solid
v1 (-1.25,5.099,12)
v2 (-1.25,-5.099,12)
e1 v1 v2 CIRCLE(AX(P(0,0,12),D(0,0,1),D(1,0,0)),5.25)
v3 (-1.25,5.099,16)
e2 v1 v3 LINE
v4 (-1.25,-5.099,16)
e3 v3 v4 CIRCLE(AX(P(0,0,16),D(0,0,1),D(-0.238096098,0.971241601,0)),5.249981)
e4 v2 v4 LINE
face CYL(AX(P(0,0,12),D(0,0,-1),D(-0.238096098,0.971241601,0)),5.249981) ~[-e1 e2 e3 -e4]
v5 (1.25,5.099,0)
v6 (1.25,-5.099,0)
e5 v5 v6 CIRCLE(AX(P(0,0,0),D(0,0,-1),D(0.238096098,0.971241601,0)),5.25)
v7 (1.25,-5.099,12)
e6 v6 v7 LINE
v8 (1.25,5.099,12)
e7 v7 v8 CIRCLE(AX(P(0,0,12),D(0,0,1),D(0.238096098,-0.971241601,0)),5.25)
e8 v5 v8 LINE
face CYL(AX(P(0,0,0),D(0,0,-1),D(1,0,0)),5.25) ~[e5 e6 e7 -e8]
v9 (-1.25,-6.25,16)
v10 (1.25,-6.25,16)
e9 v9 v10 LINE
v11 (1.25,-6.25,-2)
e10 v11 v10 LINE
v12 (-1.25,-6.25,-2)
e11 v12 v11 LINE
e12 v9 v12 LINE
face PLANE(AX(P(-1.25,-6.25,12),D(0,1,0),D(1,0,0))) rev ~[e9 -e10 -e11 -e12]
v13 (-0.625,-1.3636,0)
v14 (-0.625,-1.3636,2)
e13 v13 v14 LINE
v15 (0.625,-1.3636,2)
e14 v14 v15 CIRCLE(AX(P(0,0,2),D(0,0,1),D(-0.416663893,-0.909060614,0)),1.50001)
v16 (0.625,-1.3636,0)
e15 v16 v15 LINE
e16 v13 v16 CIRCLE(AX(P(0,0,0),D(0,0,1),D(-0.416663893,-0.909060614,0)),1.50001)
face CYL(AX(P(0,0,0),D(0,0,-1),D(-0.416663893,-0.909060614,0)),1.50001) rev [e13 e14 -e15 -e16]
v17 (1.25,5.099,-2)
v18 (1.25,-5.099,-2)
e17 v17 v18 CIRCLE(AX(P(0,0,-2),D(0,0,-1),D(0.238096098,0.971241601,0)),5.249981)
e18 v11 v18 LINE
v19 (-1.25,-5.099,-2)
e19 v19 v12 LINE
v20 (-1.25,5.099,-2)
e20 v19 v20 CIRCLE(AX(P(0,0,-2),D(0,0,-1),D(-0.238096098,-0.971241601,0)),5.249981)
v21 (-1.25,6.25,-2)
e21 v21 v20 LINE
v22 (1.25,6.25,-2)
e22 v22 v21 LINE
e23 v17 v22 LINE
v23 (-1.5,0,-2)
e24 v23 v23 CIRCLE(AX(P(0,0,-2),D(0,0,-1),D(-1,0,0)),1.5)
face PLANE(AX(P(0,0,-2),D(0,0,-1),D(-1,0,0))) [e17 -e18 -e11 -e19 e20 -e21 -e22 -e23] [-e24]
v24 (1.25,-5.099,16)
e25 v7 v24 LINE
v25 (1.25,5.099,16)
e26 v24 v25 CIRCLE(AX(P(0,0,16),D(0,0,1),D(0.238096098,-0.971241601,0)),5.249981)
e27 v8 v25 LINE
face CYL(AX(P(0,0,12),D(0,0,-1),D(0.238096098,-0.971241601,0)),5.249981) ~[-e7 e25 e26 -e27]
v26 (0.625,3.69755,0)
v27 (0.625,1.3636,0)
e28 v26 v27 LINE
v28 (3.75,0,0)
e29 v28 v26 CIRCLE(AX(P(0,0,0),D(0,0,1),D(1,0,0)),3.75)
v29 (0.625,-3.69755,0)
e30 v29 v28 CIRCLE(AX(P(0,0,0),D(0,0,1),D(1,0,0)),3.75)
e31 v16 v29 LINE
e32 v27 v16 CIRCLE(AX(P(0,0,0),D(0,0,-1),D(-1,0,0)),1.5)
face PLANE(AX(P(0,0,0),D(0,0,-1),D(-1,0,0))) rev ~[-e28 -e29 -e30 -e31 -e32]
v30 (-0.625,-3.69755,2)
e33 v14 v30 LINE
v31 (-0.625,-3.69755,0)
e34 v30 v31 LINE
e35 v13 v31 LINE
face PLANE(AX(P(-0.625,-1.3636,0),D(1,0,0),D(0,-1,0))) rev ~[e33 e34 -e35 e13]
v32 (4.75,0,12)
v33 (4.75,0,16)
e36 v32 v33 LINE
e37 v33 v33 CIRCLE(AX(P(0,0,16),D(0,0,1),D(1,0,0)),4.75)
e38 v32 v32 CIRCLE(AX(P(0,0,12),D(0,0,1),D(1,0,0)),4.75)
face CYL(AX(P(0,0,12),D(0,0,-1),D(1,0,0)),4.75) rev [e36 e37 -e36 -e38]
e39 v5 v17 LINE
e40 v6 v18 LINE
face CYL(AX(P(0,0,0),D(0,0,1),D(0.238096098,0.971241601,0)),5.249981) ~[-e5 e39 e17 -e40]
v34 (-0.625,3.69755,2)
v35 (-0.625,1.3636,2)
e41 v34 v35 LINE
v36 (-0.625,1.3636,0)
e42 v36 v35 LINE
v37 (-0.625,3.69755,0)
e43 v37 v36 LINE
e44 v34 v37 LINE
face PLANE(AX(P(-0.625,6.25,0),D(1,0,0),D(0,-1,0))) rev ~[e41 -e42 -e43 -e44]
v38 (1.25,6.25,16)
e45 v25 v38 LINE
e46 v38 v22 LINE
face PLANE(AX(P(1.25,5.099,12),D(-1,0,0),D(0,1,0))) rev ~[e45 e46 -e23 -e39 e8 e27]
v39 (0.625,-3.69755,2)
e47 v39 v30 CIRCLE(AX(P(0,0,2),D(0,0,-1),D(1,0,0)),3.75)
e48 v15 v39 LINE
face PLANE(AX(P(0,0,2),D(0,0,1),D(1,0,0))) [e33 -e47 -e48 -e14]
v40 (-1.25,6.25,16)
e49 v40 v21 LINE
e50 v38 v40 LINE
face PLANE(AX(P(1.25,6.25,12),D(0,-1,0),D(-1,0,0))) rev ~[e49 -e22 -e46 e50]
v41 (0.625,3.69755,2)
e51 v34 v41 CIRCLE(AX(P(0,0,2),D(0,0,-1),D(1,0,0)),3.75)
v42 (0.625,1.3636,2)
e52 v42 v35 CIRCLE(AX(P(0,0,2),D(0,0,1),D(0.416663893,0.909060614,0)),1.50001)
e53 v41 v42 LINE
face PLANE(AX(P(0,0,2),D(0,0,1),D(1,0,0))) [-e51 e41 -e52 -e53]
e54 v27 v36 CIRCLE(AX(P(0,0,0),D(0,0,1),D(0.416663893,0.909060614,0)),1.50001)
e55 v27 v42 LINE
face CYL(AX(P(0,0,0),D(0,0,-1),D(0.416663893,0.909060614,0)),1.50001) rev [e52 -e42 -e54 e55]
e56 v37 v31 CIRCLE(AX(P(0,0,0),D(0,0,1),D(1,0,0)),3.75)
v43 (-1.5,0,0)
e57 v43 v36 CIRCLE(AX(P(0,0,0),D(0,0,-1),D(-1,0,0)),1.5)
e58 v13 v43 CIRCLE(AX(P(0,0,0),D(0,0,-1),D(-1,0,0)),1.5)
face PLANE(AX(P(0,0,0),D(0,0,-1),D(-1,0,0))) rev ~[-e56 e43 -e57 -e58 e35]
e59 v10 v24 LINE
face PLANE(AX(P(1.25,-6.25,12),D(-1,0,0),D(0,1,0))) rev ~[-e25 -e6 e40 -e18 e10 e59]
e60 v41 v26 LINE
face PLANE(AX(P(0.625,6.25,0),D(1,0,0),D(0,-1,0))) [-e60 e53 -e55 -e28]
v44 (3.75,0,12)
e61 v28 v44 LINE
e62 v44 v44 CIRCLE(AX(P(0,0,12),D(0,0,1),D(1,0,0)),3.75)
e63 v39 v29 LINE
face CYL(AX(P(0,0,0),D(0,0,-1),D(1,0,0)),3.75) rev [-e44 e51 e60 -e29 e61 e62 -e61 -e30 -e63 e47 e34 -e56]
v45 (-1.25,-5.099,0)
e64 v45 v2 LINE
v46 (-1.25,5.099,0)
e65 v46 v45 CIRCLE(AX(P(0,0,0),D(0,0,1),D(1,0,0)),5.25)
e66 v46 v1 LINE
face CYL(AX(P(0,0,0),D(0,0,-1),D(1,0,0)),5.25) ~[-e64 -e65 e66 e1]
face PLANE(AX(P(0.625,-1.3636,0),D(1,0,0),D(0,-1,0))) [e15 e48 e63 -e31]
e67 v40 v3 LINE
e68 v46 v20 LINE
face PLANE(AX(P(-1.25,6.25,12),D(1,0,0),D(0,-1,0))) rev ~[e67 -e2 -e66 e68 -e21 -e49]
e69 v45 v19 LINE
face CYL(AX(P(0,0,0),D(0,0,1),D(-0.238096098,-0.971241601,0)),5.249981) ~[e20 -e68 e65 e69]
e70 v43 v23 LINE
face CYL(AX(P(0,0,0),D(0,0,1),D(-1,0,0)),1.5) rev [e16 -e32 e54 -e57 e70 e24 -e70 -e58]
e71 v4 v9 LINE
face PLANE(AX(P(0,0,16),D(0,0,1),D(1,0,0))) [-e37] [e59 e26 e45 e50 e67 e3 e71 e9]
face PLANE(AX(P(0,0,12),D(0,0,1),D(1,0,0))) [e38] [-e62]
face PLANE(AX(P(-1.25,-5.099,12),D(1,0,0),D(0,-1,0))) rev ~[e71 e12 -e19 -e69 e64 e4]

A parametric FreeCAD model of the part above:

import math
import FreeCAD as App
import Part
import Sketcher

V = App.Vector
Q = App.Units.Quantity

doc = App.newDocument("Part")
body = doc.addObject("PartDesign::Body", "Body")

sketch1 = body.newObject("Sketcher::SketchObject", "Sketch")
sketch1.AttachmentSupport = (doc.getObject("XY_Plane"), [""])
sketch1.MapMode = "FlatFace"
sketch1.addGeometry([
    Part.LineSegment(V(-1.2, -6.2, 0), V(1.2, -6.2, 0)),
    Part.LineSegment(V(1.2, -6.2, 0), V(1.2, -5.1, 0)),
    Part.ArcOfCircle(Part.Circle(V(0, 0, 0), V(0, 0, 1), 5.2), math.radians(-76), math.radians(76)),
    Part.LineSegment(V(1.2, 5.1, 0), V(1.2, 6.2, 0)),
    Part.LineSegment(V(1.2, 6.2, 0), V(-1.2, 6.2, 0)),
    Part.LineSegment(V(-1.2, 6.2, 0), V(-1.2, 5.1, 0)),
    Part.ArcOfCircle(Part.Circle(V(0, 0, 0), V(0, 0, 1), 5.2), math.radians(104), math.radians(256)),
    Part.LineSegment(V(-1.2, -5.1, 0), V(-1.2, -6.2, 0)),
    Part.Circle(V(0, 0, 0), V(0, 0, 1), 3.8),
], False)
sketch1.addConstraint([
    Sketcher.Constraint("Coincident", 0, 2, 1, 1),
    Sketcher.Constraint("Coincident", 1, 2, 2, 1),
    Sketcher.Constraint("Coincident", 2, 2, 3, 1),
    Sketcher.Constraint("Coincident", 3, 2, 4, 1),
    Sketcher.Constraint("Coincident", 4, 2, 5, 1),
    Sketcher.Constraint("Coincident", 5, 2, 6, 1),
    Sketcher.Constraint("Coincident", 6, 2, 7, 1),
    Sketcher.Constraint("Coincident", 7, 2, 0, 1),
    Sketcher.Constraint("Horizontal", 0),
    Sketcher.Constraint("Vertical", 1),
    Sketcher.Constraint("Vertical", 3),
    Sketcher.Constraint("Horizontal", 4),
    Sketcher.Constraint("Vertical", 5),
    Sketcher.Constraint("Vertical", 7),
    Sketcher.Constraint("Coincident", 2, 3, -1, 1),
    Sketcher.Constraint("Coincident", 6, 3, -1, 1),
    Sketcher.Constraint("Coincident", 8, 3, -1, 1),
    Sketcher.Constraint("Equal", 2, 6),
    Sketcher.Constraint("Symmetric", 0, 2, 4, 2, -1, 1),
    Sketcher.Constraint("Horizontal", 2, 2, 5, 2),
    Sketcher.Constraint("Horizontal", 1, 2, 6, 2),
    Sketcher.Constraint("Diameter", 8, Q("7.5 mm")),
    Sketcher.Constraint("Radius", 2, Q("5.25 mm")),
    Sketcher.Constraint("DistanceX", 0, 1, 0, 2, Q("2.5 mm")),
    Sketcher.Constraint("DistanceY", 1, 1, 1, 2, Q("1.151 mm")),
])
pad1 = body.newObject("PartDesign::Pad", "Pad")
pad1.Profile = sketch1
pad1.Length = 12

sketch2 = body.newObject("Sketcher::SketchObject", "Sketch001")
sketch2.AttachmentSupport = (doc.getObject("XY_Plane"), [""])
sketch2.MapMode = "FlatFace"
sketch2.addGeometry([
    Part.LineSegment(V(1.2, -5.1, 0), V(1.2, -6.2, 0)),
    Part.LineSegment(V(1.2, -6.2, 0), V(-1.2, -6.2, 0)),
    Part.LineSegment(V(-1.2, -6.2, 0), V(-1.2, -5.1, 0)),
    Part.ArcOfCircle(Part.Circle(V(0, 0, 0), V(0, 0, 1), 5.2), math.radians(104), math.radians(256)),
    Part.LineSegment(V(-1.2, 5.1, 0), V(-1.2, 6.2, 0)),
    Part.LineSegment(V(-1.2, 6.2, 0), V(1.2, 6.2, 0)),
    Part.LineSegment(V(1.2, 6.2, 0), V(1.2, 5.1, 0)),
    Part.ArcOfCircle(Part.Circle(V(0, 0, 0), V(0, 0, 1), 5.2), math.radians(-76), math.radians(76)),
    Part.Circle(V(0, 0, 0), V(0, 0, 1), 1.5),
], False)
sketch2.addConstraint([
    Sketcher.Constraint("Coincident", 0, 2, 1, 1),
    Sketcher.Constraint("Coincident", 1, 2, 2, 1),
    Sketcher.Constraint("Coincident", 2, 2, 3, 2),
    Sketcher.Constraint("Coincident", 3, 1, 4, 1),
    Sketcher.Constraint("Coincident", 4, 2, 5, 1),
    Sketcher.Constraint("Coincident", 5, 2, 6, 1),
    Sketcher.Constraint("Coincident", 6, 2, 7, 2),
    Sketcher.Constraint("Coincident", 7, 1, 0, 1),
    Sketcher.Constraint("Vertical", 0),
    Sketcher.Constraint("Horizontal", 1),
    Sketcher.Constraint("Vertical", 2),
    Sketcher.Constraint("Vertical", 4),
    Sketcher.Constraint("Horizontal", 5),
    Sketcher.Constraint("Vertical", 6),
    Sketcher.Constraint("Coincident", 3, 3, -1, 1),
    Sketcher.Constraint("Coincident", 7, 3, -1, 1),
    Sketcher.Constraint("Coincident", 8, 3, -1, 1),
    Sketcher.Constraint("Equal", 3, 7),
    Sketcher.Constraint("Symmetric", 0, 2, 4, 2, -1, 1),
    Sketcher.Constraint("Horizontal", 3, 1, 6, 2),
    Sketcher.Constraint("Horizontal", 2, 2, 7, 1),
    Sketcher.Constraint("Diameter", 8, Q("3 mm")),
    Sketcher.Constraint("Radius", 3, Q("5.25 mm")),
    Sketcher.Constraint("DistanceX", 1, 2, 1, 1, Q("2.5 mm")),
    Sketcher.Constraint("DistanceY", 0, 2, 0, 1, Q("1.151 mm")),
])
pad2 = body.newObject("PartDesign::Pad", "Pad001")
pad2.Profile = sketch2
pad2.Length = 2
pad2.Reversed = True

sketch3 = body.newObject("Sketcher::SketchObject", "Sketch002")
sketch3.AttachmentSupport = (doc.getObject("XY_Plane"), [""])
sketch3.MapMode = "FlatFace"
sketch3.addGeometry([
    Part.LineSegment(V(0.6, 1.4, 0), V(0.6, 6.2, 0)),
    Part.LineSegment(V(0.6, 6.2, 0), V(-0.6, 6.2, 0)),
    Part.LineSegment(V(-0.6, 6.2, 0), V(-0.6, 1.4, 0)),
    Part.ArcOfCircle(Part.Circle(V(0, 0, 0), V(0, 0, 1), 1.5), math.radians(65), math.radians(115)),
    Part.LineSegment(V(-0.6, -1.4, 0), V(-0.6, -6.2, 0)),
    Part.LineSegment(V(-0.6, -6.2, 0), V(0.6, -6.2, 0)),
    Part.LineSegment(V(0.6, -6.2, 0), V(0.6, -1.4, 0)),
    Part.ArcOfCircle(Part.Circle(V(0, 0, 0), V(0, 0, 1), 1.5), math.radians(-115), math.radians(-65)),
], False)
sketch3.addConstraint([
    Sketcher.Constraint("Coincident", 0, 2, 1, 1),
    Sketcher.Constraint("Coincident", 1, 2, 2, 1),
    Sketcher.Constraint("Coincident", 2, 2, 3, 2),
    Sketcher.Constraint("Coincident", 3, 1, 0, 1),
    Sketcher.Constraint("Coincident", 4, 2, 5, 1),
    Sketcher.Constraint("Coincident", 5, 2, 6, 1),
    Sketcher.Constraint("Coincident", 6, 2, 7, 2),
    Sketcher.Constraint("Coincident", 7, 1, 4, 1),
    Sketcher.Constraint("Vertical", 0),
    Sketcher.Constraint("Horizontal", 1),
    Sketcher.Constraint("Vertical", 2),
    Sketcher.Constraint("Vertical", 4),
    Sketcher.Constraint("Horizontal", 5),
    Sketcher.Constraint("Vertical", 6),
    Sketcher.Constraint("Coincident", 3, 3, -1, 1),
    Sketcher.Constraint("Coincident", 7, 3, -1, 1),
    Sketcher.Constraint("Equal", 3, 7),
    Sketcher.Constraint("Symmetric", 0, 2, 4, 2, -1, 1),
    Sketcher.Constraint("Horizontal", 2, 2, 3, 1),
    Sketcher.Constraint("Horizontal", 6, 2, 7, 1),
    Sketcher.Constraint("DistanceX", 1, 2, 1, 1, Q("1.25 mm")),
    Sketcher.Constraint("Radius", 3, Q("1.5 mm")),
    Sketcher.Constraint("DistanceY", 4, 2, 1, 2, Q("12.5 mm")),
])
pad3 = body.newObject("PartDesign::Pad", "Pad002")
pad3.Profile = sketch3
pad3.Length = 2

sketch4 = body.newObject("Sketcher::SketchObject", "Sketch003")
sketch4.AttachmentSupport = (doc.getObject("XY_Plane"), [""])
sketch4.MapMode = "FlatFace"
sketch4.AttachmentOffset = App.Placement(V(0, 0, 12), App.Rotation())
sketch4.addGeometry([
    Part.LineSegment(V(-1.2, -6.2, 0), V(1.2, -6.2, 0)),
    Part.LineSegment(V(1.2, -6.2, 0), V(1.2, -5.1, 0)),
    Part.ArcOfCircle(Part.Circle(V(0, 0, 0), V(0, 0, 1), 5.2), math.radians(-76), math.radians(76)),
    Part.LineSegment(V(1.2, 5.1, 0), V(1.2, 6.2, 0)),
    Part.LineSegment(V(1.2, 6.2, 0), V(-1.2, 6.2, 0)),
    Part.LineSegment(V(-1.2, 6.2, 0), V(-1.2, 5.1, 0)),
    Part.ArcOfCircle(Part.Circle(V(0, 0, 0), V(0, 0, 1), 5.2), math.radians(104), math.radians(256)),
    Part.LineSegment(V(-1.2, -5.1, 0), V(-1.2, -6.2, 0)),
    Part.Circle(V(0, 0, 0), V(0, 0, 1), 4.8),
], False)
sketch4.addConstraint([
    Sketcher.Constraint("Coincident", 0, 2, 1, 1),
    Sketcher.Constraint("Coincident", 1, 2, 2, 1),
    Sketcher.Constraint("Coincident", 2, 2, 3, 1),
    Sketcher.Constraint("Coincident", 3, 2, 4, 1),
    Sketcher.Constraint("Coincident", 4, 2, 5, 1),
    Sketcher.Constraint("Coincident", 5, 2, 6, 1),
    Sketcher.Constraint("Coincident", 6, 2, 7, 1),
    Sketcher.Constraint("Coincident", 7, 2, 0, 1),
    Sketcher.Constraint("Horizontal", 0),
    Sketcher.Constraint("Vertical", 1),
    Sketcher.Constraint("Vertical", 3),
    Sketcher.Constraint("Horizontal", 4),
    Sketcher.Constraint("Vertical", 5),
    Sketcher.Constraint("Vertical", 7),
    Sketcher.Constraint("Coincident", 2, 3, -1, 1),
    Sketcher.Constraint("Coincident", 6, 3, -1, 1),
    Sketcher.Constraint("Coincident", 8, 3, -1, 1),
    Sketcher.Constraint("Equal", 2, 6),
    Sketcher.Constraint("Symmetric", 0, 2, 4, 2, -1, 1),
    Sketcher.Constraint("Horizontal", 2, 2, 5, 2),
    Sketcher.Constraint("Horizontal", 1, 2, 6, 2),
    Sketcher.Constraint("Diameter", 8, Q("9.5 mm")),
    Sketcher.Constraint("Radius", 2, Q("5.25 mm")),
    Sketcher.Constraint("DistanceX", 0, 1, 0, 2, Q("2.5 mm")),
    Sketcher.Constraint("DistanceY", 1, 1, 1, 2, Q("1.151 mm")),
])
pad4 = body.newObject("PartDesign::Pad", "Pad003")
pad4.Profile = sketch4
pad4.Length = 4

doc.recompute()
